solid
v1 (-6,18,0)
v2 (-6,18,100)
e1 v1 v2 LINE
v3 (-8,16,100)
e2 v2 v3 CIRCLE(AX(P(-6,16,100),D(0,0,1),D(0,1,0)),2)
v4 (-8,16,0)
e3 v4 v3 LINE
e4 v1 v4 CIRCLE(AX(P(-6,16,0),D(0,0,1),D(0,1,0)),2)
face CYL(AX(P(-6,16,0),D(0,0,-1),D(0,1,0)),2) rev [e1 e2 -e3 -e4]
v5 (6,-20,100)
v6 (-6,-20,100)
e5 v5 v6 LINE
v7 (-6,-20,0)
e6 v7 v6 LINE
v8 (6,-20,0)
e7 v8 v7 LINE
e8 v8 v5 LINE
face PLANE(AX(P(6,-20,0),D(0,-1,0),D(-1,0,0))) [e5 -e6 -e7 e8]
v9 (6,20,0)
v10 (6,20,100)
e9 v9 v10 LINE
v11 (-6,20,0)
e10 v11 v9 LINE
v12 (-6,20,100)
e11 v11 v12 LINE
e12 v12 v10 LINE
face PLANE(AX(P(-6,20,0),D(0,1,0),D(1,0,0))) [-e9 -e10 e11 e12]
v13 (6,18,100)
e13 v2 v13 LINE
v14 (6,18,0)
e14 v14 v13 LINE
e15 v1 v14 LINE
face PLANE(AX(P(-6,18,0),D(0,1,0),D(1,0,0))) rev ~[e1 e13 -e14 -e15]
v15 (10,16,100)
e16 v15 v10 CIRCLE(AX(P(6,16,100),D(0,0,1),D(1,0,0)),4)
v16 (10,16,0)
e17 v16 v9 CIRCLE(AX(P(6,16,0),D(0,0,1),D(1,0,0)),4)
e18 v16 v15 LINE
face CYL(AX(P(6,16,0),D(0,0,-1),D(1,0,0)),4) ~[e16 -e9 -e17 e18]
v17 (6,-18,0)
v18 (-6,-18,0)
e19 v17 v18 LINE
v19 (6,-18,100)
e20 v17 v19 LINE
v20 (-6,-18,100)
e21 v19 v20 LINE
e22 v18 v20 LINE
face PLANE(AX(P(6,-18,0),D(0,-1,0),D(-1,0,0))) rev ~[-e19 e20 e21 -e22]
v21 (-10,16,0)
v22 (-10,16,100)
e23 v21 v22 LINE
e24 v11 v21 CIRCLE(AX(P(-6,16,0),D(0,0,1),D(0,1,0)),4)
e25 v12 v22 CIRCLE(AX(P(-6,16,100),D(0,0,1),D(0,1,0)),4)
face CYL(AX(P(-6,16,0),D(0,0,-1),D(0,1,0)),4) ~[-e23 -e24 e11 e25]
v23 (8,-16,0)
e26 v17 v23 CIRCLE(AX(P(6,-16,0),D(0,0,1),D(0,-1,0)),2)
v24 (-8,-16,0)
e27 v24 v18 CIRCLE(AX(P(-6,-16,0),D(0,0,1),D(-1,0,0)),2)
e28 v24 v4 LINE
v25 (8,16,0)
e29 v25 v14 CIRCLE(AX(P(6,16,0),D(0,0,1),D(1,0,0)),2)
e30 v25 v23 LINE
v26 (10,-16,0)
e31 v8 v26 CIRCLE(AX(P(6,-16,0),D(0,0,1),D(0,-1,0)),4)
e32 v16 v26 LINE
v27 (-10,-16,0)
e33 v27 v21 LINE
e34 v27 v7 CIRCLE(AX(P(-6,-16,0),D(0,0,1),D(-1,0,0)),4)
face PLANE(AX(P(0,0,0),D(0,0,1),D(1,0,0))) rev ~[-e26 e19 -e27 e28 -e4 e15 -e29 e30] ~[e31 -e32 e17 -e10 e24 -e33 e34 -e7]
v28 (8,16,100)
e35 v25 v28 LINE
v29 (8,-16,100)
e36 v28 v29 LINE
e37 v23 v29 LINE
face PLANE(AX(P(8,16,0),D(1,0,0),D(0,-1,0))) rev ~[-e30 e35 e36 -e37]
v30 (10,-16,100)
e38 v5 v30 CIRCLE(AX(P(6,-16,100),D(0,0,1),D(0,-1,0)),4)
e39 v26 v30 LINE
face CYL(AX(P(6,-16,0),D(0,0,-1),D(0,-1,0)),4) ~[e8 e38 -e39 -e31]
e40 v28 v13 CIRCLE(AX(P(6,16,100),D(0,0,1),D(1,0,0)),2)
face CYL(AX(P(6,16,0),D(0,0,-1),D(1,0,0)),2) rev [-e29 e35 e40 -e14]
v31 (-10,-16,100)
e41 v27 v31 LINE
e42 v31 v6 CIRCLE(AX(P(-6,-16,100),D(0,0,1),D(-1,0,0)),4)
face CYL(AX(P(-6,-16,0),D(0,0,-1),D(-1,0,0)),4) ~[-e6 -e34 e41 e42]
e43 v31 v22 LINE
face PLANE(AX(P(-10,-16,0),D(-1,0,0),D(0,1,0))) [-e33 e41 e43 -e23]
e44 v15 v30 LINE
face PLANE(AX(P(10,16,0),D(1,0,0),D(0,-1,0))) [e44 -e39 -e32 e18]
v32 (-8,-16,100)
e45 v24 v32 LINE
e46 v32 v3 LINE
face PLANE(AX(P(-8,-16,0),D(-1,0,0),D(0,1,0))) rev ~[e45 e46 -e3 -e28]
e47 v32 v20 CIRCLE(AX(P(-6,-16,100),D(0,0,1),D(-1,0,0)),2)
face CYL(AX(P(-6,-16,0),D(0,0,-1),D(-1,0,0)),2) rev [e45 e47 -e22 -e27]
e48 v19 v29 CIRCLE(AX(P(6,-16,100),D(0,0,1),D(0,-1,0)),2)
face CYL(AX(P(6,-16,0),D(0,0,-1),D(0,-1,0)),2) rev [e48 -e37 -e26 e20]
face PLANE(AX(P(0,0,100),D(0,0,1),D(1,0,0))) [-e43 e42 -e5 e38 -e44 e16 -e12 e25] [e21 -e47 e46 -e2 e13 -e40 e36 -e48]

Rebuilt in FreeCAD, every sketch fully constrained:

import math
import FreeCAD as App
import Part
import Sketcher
Q = App.Units.Quantity

doc = App.newDocument("Part")
params = doc.addObject("Spreadsheet::Sheet", "Params")
for row, (alias, value) in enumerate([
    ("sketch1_radius", "4 mm"),
    ("sketch1_radius2", "2 mm"),
    ("pad1_length", "100 mm"),
], start=1):
    params.set(f"A{row}", alias)
    params.set(f"B{row}", "=" + value)
    params.setAlias(f"B{row}", alias)

body = doc.addObject("PartDesign::Body", "Body")

sketch1 = body.newObject("Sketcher::SketchObject", "Sketch")
sketch1.AttachmentSupport = (doc.getObject("XY_Plane"), [""])
sketch1.MapMode = "FlatFace"
sketch1.addGeometry([
    Part.LineSegment(App.Vector(-10, 16, 0), App.Vector(-10, -16, 0)),
    Part.ArcOfCircle(Part.Circle(App.Vector(-6, -16, 0), App.Vector(0, 0, 1), 4), math.radians(180), math.radians(270)),
    Part.LineSegment(App.Vector(-6, -20, 0), App.Vector(6, -20, 0)),
    Part.ArcOfCircle(Part.Circle(App.Vector(6, -16, 0), App.Vector(0, 0, 1), 4), math.radians(-90), math.radians(0)),
    Part.LineSegment(App.Vector(10, -16, 0), App.Vector(10, 16, 0)),
    Part.ArcOfCircle(Part.Circle(App.Vector(6, 16, 0), App.Vector(0, 0, 1), 4), math.radians(0), math.radians(90)),
    Part.LineSegment(App.Vector(6, 20, 0), App.Vector(-6, 20, 0)),
    Part.ArcOfCircle(Part.Circle(App.Vector(-6, 16, 0), App.Vector(0, 0, 1), 4), math.radians(90), math.radians(180)),
    Part.ArcOfCircle(Part.Circle(App.Vector(-6, 16, 0), App.Vector(0, 0, 1), 2), math.radians(90), math.radians(180)),
    Part.LineSegment(App.Vector(-6, 18, 0), App.Vector(6, 18, 0)),
    Part.ArcOfCircle(Part.Circle(App.Vector(6, 16, 0), App.Vector(0, 0, 1), 2), math.radians(0), math.radians(90)),
    Part.LineSegment(App.Vector(8, 16, 0), App.Vector(8, -16, 0)),
    Part.ArcOfCircle(Part.Circle(App.Vector(6, -16, 0), App.Vector(0, 0, 1), 2), math.radians(-90), math.radians(0)),
    Part.LineSegment(App.Vector(6, -18, 0), App.Vector(-6, -18, 0)),
    Part.ArcOfCircle(Part.Circle(App.Vector(-6, -16, 0), App.Vector(0, 0, 1), 2), math.radians(180), math.radians(270)),
    Part.LineSegment(App.Vector(-8, -16, 0), App.Vector(-8, 16, 0)),
], False)
sketch1.addConstraint([
    Sketcher.Constraint("Tangent", 0, 2, 1, 1),
    Sketcher.Constraint("Tangent", 1, 2, 2, 1),
    Sketcher.Constraint("Tangent", 2, 2, 3, 1),
    Sketcher.Constraint("Tangent", 3, 2, 4, 1),
    Sketcher.Constraint("Tangent", 4, 2, 5, 1),
    Sketcher.Constraint("Tangent", 5, 2, 6, 1),
    Sketcher.Constraint("Tangent", 6, 2, 7, 1),
    Sketcher.Constraint("Tangent", 7, 2, 0, 1),
    Sketcher.Constraint("Tangent", 8, 1, 9, 1),
    Sketcher.Constraint("Tangent", 9, 2, 10, 2),
    Sketcher.Constraint("Tangent", 10, 1, 11, 1),
    Sketcher.Constraint("Tangent", 11, 2, 12, 2),
    Sketcher.Constraint("Tangent", 12, 1, 13, 1),
    Sketcher.Constraint("Tangent", 13, 2, 14, 2),
    Sketcher.Constraint("Tangent", 14, 1, 15, 1),
    Sketcher.Constraint("Tangent", 15, 2, 8, 2),
    Sketcher.Constraint("Vertical", 0),
    Sketcher.Constraint("Horizontal", 2),
    Sketcher.Constraint("Vertical", 4),
    Sketcher.Constraint("Horizontal", 6),
    Sketcher.Constraint("Horizontal", 9),
    Sketcher.Constraint("Vertical", 11),
    Sketcher.Constraint("Horizontal", 13),
    Sketcher.Constraint("Vertical", 15),
    Sketcher.Constraint("Coincident", 8, 3, 7, 3),
    Sketcher.Constraint("Coincident", 10, 3, 5, 3),
    Sketcher.Constraint("Coincident", 12, 3, 3, 3),
    Sketcher.Constraint("Equal", 1, 3),
    Sketcher.Constraint("Equal", 3, 5),
    Sketcher.Constraint("Equal", 5, 7),
    Sketcher.Constraint("Equal", 12, 14),
    Sketcher.Constraint("Symmetric", 1, 3, 5, 3, -1, 1),
    Sketcher.Constraint("Radius", 1, Q("4 mm")),
    Sketcher.Constraint("Radius", 8, Q("2 mm")),
    Sketcher.Constraint("DistanceX", 0, 2, -1, 1, Q("10 mm")),
    Sketcher.Constraint("DistanceY", 1, 2, -1, 1, Q("20 mm")),
])
sketch1.setExpression("Constraints[32]", "Params.sketch1_radius")
sketch1.setExpression("Constraints[33]", "Params.sketch1_radius2")
pad1 = body.newObject("PartDesign::Pad", "Pad")
pad1.Profile = sketch1
pad1.setExpression("Length", "Params.pad1_length")

doc.recompute()
